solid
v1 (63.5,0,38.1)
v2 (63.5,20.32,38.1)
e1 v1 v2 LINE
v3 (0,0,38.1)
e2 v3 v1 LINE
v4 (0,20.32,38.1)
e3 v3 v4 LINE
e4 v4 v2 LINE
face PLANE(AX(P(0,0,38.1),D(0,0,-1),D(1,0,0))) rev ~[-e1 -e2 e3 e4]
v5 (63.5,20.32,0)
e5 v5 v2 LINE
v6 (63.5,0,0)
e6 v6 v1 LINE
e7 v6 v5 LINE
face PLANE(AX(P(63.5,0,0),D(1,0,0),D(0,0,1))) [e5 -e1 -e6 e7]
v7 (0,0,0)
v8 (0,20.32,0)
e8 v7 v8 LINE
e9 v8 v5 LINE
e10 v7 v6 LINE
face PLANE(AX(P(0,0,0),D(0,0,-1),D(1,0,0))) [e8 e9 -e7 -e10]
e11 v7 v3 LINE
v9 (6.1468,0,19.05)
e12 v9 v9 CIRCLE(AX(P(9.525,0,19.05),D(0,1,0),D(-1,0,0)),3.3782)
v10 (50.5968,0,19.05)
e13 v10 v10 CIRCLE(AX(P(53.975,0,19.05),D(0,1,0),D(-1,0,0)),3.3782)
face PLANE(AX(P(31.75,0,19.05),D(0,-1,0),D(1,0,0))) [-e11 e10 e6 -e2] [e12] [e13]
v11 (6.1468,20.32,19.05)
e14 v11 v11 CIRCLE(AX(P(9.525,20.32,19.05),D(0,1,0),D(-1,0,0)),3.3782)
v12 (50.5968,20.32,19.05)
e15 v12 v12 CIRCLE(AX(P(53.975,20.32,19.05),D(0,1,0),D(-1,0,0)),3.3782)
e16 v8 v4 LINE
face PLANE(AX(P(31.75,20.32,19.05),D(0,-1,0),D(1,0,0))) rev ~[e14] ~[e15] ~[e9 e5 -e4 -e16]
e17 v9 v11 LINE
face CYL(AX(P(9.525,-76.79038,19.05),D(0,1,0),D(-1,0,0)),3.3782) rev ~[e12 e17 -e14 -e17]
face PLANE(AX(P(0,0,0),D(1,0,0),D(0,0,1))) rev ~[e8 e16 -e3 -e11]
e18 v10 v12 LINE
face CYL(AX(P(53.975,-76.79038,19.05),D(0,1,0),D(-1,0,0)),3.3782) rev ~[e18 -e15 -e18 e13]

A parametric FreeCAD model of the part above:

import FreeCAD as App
import Part
import Sketcher
Q = App.Units.Quantity


def add_polygon(sketch, points):
    """Adds a closed chain of lines whose ends are joined by coincident constraints."""
    first, n = sketch.GeometryCount, len(points)
    for a, b in zip(points, points[1:] + points[:1]):
        sketch.addGeometry(Part.LineSegment(App.Vector(*a, 0), App.Vector(*b, 0)), False)
    for i in range(n):
        sketch.addConstraint(Sketcher.Constraint("Coincident", first + i, 2, first + (i + 1) % n, 1))

doc = App.newDocument("Part")
params = doc.addObject("Spreadsheet::Sheet", "Params")
for row, (alias, value) in enumerate([
    ("sketch1_width", "2.5 in"),
    ("sketch1_height", "1.5 in"),
    ("pad1_length", "0.8 in"),
    ("sketch2_diameter", "0.266 in"),
    ("hole_diameter", "0.266 in"),
], start=1):
    params.set(f"A{row}", alias)
    params.set(f"B{row}", "=" + value)
    params.setAlias(f"B{row}", alias)

body = doc.addObject("PartDesign::Body", "Body")

# Sketch on XZ plane
sketch1 = doc.addObject("Sketcher::SketchObject", "Sketch")
body.addObject(sketch1)
sketch1.AttachmentSupport = (doc.XZ_Plane, [""])
sketch1.MapMode = "FlatFace"
add_polygon(sketch1, [(0, 38), (0, 0), (64, 0), (64, 38)])  # lines 0-3
sketch1.addConstraint([
    Sketcher.Constraint("Vertical", 0),
    Sketcher.Constraint("Horizontal", 1),
    Sketcher.Constraint("Vertical", 2),
    Sketcher.Constraint("Horizontal", 3),
    Sketcher.Constraint("Coincident", 0, 2, -1, 1),
    Sketcher.Constraint("DistanceX", 1, 1, 1, 2, Q("2.5 in")),
    Sketcher.Constraint("DistanceY", 0, 2, 0, 1, Q("1.5 in")),
])
sketch1.setExpression("Constraints[9]", "Params.sketch1_width")
sketch1.setExpression("Constraints[10]", "Params.sketch1_height")
pad1 = doc.addObject("PartDesign::Pad", "Pad")
body.addObject(pad1)
pad1.Profile = sketch1
pad1.setExpression("Length", "Params.pad1_length")
pad1.Reversed = True

# Sketch on XZ plane
sketch2 = doc.addObject("Sketcher::SketchObject", "Sketch001")
body.addObject(sketch2)
sketch2.AttachmentSupport = (doc.XZ_Plane, [""])
sketch2.MapMode = "FlatFace"
sketch2.addGeometry([
    Part.Circle(App.Vector(9.5, 19.1, 0), App.Vector(0, 0, 1), 3.4),
    Part.Circle(App.Vector(54, 19.1, 0), App.Vector(0, 0, 1), 3.4),
], False)
sketch2.addConstraint([
    Sketcher.Constraint("Equal", 0, 1),
    Sketcher.Constraint("Horizontal", 0, 3, 1, 3),
    Sketcher.Constraint("Diameter", 0, Q("0.266 in")),
    Sketcher.Constraint("DistanceY", -1, 1, 0, 3, Q("0.75 in")),
    Sketcher.Constraint("DistanceX", 0, 3, 1, 3, Q("1.75 in")),
    Sketcher.Constraint("DistanceX", -1, 1, 0, 3, Q("0.375 in")),
])
sketch2.setExpression("Constraints[2]", "Params.sketch2_diameter")
doc.recompute()
hole = doc.addObject("PartDesign::Hole", "Hole")
body.addObject(hole)
hole.Profile = sketch2
hole.ThreadType = "None"
hole.setExpression("Diameter", "Params.hole_diameter")
hole.DepthType = "ThroughAll"

doc.recompute()
